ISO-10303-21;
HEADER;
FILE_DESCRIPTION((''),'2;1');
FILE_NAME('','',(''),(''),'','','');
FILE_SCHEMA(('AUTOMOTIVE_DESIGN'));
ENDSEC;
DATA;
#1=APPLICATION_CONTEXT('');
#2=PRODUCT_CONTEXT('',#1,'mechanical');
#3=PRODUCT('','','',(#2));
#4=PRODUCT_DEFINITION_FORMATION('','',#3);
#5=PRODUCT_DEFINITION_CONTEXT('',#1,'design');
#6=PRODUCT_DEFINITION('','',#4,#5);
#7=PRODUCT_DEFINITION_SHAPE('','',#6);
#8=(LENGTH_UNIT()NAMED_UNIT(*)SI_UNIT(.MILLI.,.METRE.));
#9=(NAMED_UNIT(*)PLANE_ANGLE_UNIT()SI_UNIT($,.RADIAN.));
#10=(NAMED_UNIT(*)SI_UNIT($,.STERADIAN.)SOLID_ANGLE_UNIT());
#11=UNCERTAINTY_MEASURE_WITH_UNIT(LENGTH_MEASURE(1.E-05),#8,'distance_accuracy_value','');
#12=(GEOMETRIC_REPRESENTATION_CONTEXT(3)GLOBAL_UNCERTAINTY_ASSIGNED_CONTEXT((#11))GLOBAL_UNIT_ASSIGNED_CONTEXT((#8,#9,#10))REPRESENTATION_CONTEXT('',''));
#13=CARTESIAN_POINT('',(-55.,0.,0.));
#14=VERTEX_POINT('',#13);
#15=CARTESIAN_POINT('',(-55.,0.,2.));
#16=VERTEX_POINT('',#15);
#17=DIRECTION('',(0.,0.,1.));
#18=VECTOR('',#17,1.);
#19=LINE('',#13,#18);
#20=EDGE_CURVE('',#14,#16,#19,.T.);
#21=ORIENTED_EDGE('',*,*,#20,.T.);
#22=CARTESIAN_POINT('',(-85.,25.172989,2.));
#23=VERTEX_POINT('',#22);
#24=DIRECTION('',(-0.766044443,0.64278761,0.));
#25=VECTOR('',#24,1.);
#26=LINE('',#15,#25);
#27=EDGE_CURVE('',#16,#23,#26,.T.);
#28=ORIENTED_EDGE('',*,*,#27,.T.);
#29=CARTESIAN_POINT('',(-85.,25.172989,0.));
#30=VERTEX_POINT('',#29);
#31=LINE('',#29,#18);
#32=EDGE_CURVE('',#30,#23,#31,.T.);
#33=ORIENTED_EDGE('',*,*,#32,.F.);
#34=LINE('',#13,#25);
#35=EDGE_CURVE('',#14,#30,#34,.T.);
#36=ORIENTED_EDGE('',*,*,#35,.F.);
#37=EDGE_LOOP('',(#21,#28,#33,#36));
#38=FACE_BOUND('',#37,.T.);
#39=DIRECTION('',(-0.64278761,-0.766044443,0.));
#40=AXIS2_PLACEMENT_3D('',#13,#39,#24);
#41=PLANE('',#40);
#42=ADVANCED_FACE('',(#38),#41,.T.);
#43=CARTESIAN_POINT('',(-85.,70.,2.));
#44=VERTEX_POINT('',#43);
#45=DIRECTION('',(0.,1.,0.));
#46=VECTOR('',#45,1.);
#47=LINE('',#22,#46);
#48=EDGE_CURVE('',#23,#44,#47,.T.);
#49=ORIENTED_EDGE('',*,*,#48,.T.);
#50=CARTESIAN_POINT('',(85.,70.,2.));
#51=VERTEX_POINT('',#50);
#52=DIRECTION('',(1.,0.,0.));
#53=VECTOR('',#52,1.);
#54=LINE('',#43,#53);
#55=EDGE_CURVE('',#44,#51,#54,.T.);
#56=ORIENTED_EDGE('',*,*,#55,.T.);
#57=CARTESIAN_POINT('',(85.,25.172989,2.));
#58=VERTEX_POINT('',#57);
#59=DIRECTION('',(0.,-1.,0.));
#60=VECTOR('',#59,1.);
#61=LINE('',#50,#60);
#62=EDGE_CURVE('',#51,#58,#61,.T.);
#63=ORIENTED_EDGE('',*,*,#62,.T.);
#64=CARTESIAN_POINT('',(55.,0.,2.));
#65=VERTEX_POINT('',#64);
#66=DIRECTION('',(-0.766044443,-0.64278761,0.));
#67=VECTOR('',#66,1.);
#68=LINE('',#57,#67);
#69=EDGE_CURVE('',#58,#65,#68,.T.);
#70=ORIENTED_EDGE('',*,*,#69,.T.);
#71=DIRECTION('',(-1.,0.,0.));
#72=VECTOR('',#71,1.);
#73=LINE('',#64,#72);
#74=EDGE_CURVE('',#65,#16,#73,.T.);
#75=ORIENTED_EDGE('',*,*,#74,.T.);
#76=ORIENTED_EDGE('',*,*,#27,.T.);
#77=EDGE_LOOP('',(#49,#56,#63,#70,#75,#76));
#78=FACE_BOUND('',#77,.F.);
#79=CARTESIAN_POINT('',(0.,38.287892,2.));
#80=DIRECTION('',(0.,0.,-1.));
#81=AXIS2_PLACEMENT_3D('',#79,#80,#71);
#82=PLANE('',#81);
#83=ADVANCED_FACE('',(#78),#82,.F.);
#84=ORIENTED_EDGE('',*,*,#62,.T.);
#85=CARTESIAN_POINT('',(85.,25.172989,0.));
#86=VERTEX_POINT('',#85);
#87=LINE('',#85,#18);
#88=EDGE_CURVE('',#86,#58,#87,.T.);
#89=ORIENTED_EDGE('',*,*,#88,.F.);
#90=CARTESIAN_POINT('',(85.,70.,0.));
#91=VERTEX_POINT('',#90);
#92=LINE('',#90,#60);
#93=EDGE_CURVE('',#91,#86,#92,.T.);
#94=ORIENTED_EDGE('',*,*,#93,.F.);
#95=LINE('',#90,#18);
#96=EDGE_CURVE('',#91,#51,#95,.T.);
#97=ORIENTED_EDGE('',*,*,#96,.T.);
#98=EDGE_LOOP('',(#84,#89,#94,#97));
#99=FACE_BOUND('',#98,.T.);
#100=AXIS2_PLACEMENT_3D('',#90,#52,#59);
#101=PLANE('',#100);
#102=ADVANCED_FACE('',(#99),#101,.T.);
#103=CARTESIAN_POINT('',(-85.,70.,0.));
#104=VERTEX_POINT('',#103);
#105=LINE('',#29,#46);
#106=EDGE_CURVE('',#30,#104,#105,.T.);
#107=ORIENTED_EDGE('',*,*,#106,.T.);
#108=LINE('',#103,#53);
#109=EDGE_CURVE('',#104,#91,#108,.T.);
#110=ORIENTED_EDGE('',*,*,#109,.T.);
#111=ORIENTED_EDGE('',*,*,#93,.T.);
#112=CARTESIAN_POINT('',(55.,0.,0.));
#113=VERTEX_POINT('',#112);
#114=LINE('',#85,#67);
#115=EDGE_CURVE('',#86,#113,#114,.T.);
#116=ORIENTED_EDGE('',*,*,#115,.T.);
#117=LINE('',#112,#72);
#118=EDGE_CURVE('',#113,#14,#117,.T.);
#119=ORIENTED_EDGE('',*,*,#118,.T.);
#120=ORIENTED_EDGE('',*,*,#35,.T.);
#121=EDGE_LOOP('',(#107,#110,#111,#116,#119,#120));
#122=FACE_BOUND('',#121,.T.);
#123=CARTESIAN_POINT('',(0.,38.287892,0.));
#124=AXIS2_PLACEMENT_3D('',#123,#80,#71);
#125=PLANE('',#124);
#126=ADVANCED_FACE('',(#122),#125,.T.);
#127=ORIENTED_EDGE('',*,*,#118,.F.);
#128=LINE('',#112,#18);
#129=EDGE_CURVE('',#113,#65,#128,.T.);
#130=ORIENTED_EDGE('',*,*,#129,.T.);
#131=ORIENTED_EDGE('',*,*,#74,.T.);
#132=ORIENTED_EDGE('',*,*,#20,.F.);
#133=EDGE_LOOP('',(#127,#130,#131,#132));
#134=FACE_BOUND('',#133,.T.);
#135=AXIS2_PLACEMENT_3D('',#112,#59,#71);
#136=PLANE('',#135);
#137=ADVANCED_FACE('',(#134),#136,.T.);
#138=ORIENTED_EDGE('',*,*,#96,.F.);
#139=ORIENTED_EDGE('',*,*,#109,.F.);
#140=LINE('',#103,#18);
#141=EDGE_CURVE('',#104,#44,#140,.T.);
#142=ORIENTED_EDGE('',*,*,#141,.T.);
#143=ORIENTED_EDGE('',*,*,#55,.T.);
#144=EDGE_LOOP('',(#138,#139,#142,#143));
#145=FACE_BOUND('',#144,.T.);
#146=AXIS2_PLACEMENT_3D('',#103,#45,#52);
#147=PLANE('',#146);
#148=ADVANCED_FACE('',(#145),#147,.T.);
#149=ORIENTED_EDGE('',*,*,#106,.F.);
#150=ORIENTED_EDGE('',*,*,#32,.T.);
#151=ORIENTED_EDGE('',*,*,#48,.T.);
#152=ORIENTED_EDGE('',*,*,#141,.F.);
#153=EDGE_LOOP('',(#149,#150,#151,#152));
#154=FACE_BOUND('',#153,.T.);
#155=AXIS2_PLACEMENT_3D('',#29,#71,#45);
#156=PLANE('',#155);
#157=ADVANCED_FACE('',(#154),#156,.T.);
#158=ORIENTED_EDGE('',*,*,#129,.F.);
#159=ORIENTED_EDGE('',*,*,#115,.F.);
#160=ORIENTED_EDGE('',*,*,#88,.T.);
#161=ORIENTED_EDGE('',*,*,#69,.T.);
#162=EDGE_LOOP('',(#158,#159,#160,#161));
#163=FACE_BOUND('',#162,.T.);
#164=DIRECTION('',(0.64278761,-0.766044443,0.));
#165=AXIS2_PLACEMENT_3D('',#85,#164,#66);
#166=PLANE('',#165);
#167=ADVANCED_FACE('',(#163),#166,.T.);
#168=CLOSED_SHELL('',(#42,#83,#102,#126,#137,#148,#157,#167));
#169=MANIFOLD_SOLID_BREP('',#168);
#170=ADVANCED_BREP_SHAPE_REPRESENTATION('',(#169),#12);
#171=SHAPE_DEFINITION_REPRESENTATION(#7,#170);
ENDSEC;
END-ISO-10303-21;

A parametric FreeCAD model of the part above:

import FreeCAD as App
import Part
import Sketcher

V = App.Vector
Q = App.Units.Quantity

doc = App.newDocument("Part")
body = doc.addObject("PartDesign::Body", "Body")

# Sketch on XY plane
sketch1 = doc.addObject("Sketcher::SketchObject", "Sketch")
body.addObject(sketch1)
sketch1.AttachmentSupport = (doc.XY_Plane, [""])
sketch1.MapMode = "FlatFace"
sketch1.addGeometry([
    Part.LineSegment(V(-55, 0, 0), V(55, 0, 0)),  # 0
    Part.LineSegment(V(55, 0, 0), V(85, 25, 0)),  # 1
    Part.LineSegment(V(85, 25, 0), V(85, 70, 0)),  # 2
    Part.LineSegment(V(85, 70, 0), V(-85, 70, 0)),  # 3
    Part.LineSegment(V(-85, 70, 0), V(-85, 25, 0)),  # 4
    Part.LineSegment(V(-85, 25, 0), V(-55, 0, 0)),  # 5
], False)
sketch1.addConstraint([
    Sketcher.Constraint("Coincident", 0, 2, 1, 1),
    Sketcher.Constraint("Coincident", 1, 2, 2, 1),
    Sketcher.Constraint("Coincident", 2, 2, 3, 1),
    Sketcher.Constraint("Coincident", 3, 2, 4, 1),
    Sketcher.Constraint("Coincident", 4, 2, 5, 1),
    Sketcher.Constraint("Coincident", 5, 2, 0, 1),
    Sketcher.Constraint("Horizontal", 0),
    Sketcher.Constraint("Vertical", 2),
    Sketcher.Constraint("Horizontal", 3),
    Sketcher.Constraint("Vertical", 4),
    Sketcher.Constraint("Symmetric", 0, 2, 5, 2, -1, 1),
    Sketcher.Constraint("Symmetric", 1, 2, 4, 2, -2),
    Sketcher.Constraint("DistanceX", 0, 1, 0, 2, 110.0),
    Sketcher.Constraint("DistanceX", 3, 2, 3, 1, 170.0),
    Sketcher.Constraint("Angle", 1, Q("40 deg")),
    Sketcher.Constraint("DistanceY", -1, 1, 2, 2, 70.0),
])
pad1 = doc.addObject("PartDesign::Pad", "Pad")
body.addObject(pad1)
pad1.Profile = sketch1
pad1.Length = 2

doc.recompute()
